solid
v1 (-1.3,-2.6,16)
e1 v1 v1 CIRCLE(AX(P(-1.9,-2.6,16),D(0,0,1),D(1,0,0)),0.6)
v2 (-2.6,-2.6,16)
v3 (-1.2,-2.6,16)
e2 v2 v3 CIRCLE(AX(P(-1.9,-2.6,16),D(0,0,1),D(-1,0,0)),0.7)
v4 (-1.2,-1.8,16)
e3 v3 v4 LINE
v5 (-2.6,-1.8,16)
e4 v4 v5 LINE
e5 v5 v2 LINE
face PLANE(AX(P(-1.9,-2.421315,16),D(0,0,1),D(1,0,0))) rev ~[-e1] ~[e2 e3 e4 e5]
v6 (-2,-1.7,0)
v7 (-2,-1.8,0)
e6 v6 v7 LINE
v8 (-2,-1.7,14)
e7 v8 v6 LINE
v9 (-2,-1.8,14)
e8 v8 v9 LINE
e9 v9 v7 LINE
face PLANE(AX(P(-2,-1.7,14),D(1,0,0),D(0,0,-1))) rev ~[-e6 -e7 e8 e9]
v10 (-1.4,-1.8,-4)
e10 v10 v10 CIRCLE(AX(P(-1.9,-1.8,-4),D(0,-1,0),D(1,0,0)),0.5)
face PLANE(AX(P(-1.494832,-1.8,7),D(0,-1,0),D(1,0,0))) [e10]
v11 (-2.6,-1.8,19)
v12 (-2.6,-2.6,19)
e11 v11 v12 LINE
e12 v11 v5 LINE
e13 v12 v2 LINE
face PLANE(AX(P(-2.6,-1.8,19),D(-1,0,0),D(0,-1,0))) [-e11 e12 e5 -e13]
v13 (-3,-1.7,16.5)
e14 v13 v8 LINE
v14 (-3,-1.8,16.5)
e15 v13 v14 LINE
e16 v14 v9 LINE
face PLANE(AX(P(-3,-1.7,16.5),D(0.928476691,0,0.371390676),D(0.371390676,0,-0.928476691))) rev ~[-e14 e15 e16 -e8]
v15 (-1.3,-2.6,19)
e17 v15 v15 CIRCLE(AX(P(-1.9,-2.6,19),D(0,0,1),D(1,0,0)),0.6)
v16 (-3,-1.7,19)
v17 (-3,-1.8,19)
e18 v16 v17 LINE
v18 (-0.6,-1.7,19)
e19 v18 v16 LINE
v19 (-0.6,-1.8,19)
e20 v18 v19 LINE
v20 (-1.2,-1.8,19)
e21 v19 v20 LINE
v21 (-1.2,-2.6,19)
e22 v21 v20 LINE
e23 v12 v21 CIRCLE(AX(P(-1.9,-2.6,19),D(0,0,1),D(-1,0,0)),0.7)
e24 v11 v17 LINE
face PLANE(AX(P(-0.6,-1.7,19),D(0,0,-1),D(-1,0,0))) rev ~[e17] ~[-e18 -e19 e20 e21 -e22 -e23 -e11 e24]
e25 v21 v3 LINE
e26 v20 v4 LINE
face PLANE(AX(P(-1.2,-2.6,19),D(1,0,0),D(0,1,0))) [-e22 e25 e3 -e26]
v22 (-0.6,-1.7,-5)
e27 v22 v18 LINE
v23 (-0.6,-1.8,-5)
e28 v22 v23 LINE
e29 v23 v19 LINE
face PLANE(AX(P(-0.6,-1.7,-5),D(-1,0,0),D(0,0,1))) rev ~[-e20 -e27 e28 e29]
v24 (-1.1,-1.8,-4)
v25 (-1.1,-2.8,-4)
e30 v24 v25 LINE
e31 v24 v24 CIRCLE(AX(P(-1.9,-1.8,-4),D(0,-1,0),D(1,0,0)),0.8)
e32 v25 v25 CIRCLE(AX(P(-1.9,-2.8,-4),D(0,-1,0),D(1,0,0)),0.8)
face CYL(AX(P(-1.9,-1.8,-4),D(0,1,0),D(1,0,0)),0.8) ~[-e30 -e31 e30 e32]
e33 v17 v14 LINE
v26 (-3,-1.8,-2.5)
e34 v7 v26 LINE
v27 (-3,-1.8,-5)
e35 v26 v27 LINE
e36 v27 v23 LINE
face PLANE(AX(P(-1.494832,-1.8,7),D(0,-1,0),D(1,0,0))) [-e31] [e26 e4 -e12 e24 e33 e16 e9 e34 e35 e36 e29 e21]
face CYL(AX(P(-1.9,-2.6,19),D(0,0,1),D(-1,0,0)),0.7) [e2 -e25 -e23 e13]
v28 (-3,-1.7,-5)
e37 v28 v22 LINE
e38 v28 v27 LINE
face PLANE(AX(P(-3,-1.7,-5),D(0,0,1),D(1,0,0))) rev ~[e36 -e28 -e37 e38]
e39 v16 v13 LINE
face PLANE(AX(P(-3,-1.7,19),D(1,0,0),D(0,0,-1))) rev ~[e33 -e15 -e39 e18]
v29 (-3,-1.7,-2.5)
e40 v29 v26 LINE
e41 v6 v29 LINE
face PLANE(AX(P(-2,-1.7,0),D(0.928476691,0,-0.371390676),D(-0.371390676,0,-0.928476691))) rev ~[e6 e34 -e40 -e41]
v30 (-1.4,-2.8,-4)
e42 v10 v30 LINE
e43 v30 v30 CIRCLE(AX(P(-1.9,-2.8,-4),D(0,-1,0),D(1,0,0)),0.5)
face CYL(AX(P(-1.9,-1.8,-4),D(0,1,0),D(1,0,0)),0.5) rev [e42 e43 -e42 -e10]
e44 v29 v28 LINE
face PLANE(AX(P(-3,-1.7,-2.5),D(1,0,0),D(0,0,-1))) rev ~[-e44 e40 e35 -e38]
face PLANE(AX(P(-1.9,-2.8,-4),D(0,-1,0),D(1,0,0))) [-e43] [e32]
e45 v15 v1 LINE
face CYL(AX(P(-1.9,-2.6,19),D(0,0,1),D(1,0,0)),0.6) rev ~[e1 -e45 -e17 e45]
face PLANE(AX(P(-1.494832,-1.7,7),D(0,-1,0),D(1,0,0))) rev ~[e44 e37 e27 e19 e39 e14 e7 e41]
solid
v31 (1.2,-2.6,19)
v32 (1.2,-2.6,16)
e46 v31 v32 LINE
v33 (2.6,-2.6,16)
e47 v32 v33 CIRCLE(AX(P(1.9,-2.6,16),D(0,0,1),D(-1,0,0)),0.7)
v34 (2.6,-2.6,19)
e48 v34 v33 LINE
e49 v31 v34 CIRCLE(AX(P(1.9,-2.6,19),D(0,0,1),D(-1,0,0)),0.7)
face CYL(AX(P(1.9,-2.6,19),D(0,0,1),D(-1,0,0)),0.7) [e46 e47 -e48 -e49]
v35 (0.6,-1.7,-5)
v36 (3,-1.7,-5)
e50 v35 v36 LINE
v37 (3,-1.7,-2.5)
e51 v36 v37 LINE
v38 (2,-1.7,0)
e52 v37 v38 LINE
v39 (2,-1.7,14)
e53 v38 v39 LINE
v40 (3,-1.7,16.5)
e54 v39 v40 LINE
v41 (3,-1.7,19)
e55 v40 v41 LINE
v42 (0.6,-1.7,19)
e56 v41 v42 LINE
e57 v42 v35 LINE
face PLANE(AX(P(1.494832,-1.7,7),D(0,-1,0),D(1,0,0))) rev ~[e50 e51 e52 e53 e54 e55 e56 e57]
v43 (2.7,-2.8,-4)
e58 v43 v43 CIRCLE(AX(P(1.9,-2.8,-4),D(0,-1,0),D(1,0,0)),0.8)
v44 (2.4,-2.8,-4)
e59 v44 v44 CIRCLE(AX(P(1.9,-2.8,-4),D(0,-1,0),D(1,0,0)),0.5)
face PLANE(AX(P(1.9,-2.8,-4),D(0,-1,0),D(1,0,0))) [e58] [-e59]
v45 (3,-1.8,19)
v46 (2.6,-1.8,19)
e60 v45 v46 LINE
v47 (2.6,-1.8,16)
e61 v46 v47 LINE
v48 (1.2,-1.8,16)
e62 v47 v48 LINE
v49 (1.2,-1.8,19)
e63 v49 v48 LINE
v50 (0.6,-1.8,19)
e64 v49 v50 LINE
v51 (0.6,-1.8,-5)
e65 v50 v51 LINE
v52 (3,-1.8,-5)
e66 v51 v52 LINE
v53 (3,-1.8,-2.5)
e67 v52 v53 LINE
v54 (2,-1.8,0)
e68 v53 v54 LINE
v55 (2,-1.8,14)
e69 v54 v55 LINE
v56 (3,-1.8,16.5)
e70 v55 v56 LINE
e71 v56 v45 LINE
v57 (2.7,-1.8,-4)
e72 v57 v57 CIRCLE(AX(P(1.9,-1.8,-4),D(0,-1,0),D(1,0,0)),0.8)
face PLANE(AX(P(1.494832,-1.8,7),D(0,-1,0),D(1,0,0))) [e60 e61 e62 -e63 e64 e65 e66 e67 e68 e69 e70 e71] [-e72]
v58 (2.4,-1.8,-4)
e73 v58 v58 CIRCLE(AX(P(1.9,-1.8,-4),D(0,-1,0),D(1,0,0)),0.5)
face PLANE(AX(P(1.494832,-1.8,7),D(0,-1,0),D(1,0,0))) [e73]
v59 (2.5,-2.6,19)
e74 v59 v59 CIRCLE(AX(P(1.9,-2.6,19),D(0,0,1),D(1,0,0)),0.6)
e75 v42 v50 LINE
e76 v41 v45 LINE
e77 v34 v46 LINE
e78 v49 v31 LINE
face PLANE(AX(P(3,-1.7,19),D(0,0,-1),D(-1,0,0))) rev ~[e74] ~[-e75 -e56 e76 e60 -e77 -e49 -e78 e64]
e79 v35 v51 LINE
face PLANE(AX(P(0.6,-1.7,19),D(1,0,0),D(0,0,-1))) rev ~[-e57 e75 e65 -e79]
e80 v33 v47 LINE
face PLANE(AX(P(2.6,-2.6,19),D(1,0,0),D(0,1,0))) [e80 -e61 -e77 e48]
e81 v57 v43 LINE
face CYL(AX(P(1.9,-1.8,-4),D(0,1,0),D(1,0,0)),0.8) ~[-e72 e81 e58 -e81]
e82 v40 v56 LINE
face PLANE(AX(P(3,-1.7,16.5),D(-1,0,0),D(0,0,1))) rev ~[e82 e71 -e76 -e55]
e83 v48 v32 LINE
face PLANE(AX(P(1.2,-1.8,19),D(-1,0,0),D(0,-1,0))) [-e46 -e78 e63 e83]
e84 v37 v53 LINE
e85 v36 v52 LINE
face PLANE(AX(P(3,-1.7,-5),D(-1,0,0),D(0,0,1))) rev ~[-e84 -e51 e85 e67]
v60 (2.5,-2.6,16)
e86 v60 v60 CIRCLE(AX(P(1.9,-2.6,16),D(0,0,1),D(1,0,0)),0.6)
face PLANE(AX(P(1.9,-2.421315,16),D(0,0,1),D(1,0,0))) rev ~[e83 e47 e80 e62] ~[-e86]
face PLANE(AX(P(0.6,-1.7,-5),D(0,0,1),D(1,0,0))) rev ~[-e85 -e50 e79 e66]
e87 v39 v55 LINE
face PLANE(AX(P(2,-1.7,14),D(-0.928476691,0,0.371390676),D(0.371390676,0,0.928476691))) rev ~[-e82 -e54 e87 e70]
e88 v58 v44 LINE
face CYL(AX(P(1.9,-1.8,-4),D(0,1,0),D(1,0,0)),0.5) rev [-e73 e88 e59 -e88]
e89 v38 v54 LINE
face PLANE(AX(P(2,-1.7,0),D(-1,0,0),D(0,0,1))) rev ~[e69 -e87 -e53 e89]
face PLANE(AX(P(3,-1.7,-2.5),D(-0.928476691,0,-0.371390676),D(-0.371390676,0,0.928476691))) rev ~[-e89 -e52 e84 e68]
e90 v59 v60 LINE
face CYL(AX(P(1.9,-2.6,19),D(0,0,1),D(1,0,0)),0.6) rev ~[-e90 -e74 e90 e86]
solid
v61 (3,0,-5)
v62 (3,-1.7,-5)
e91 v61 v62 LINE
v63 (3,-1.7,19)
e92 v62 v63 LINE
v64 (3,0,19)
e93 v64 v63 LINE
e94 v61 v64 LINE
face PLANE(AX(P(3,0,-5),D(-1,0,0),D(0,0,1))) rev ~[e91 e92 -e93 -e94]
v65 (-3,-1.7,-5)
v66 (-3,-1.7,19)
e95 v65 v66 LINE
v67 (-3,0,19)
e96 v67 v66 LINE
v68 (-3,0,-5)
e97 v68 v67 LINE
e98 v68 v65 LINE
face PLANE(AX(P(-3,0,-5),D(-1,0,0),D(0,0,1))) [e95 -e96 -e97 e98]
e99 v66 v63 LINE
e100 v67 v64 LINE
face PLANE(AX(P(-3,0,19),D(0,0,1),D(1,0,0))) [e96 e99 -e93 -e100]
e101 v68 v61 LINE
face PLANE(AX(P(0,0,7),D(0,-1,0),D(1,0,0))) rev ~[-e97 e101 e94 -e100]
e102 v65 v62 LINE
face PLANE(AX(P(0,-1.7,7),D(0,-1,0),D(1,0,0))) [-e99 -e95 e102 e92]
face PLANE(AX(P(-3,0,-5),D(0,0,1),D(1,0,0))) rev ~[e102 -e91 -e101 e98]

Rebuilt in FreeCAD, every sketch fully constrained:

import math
import FreeCAD as App
import Part
import Sketcher

V = App.Vector
Q = App.Units.Quantity

doc = App.newDocument("Part")
params = doc.addObject("Spreadsheet::Sheet", "Params")
for row, (alias, value) in enumerate([
    ("sketch1_width", "6 mm"),
    ("sketch1_height", "24 mm"),
    ("pad1_length", "1.7 mm"),
    ("sketch2_height", "24 mm"),
    ("sketch2_height2", "14 mm"),
    ("sketch2_width", "2.4 mm"),
    ("sketch2_height3", "2.5 mm"),
    ("pad2_length", "0.1 mm"),
    ("sketch3_diameter", "1 mm"),
    ("sketch3_diameter2", "1.6 mm"),
    ("pad3_length", "1 mm"),
    ("sketch4_diameter", "1 mm"),
    ("sketch4_diameter2", "1.6 mm"),
    ("pad4_length", "1 mm"),
    ("sketch5_diameter", "1.2 mm"),
    ("sketch5_radius", "0.7 mm"),
    ("sketch5_height", "0.8 mm"),
    ("pad5_length", "3 mm"),
], start=1):
    params.set(f"A{row}", alias)
    params.set(f"B{row}", "=" + value)
    params.setAlias(f"B{row}", alias)

body = doc.addObject("PartDesign::Body", "Body")

sketch1 = body.newObject("Sketcher::SketchObject", "Sketch")
sketch1.AttachmentSupport = (doc.getObject("XZ_Plane"), [""])
sketch1.MapMode = "FlatFace"
sketch1.addGeometry(Part.LineSegment(V(-3, 19, 0), V(-3, -5, 0)), False)
sketch1.addGeometry(Part.LineSegment(V(-3, -5, 0), V(3, -5, 0)), False)
sketch1.addGeometry(Part.LineSegment(V(3, -5, 0), V(3, 19, 0)), False)
sketch1.addGeometry(Part.LineSegment(V(3, 19, 0), V(-3, 19, 0)), False)
sketch1.addConstraint(Sketcher.Constraint("Coincident", 0, 2, 1, 1))
sketch1.addConstraint(Sketcher.Constraint("Coincident", 1, 2, 2, 1))
sketch1.addConstraint(Sketcher.Constraint("Coincident", 2, 2, 3, 1))
sketch1.addConstraint(Sketcher.Constraint("Coincident", 3, 2, 0, 1))
sketch1.addConstraint(Sketcher.Constraint("Vertical", 0))
sketch1.addConstraint(Sketcher.Constraint("Horizontal", 1))
sketch1.addConstraint(Sketcher.Constraint("Vertical", 2))
sketch1.addConstraint(Sketcher.Constraint("Horizontal", 3))
sketch1.addConstraint(Sketcher.Constraint("DistanceX", 1, 1, 1, 2, Q("6 mm")))
sketch1.addConstraint(Sketcher.Constraint("DistanceY", 0, 2, 0, 1, Q("24 mm")))
sketch1.addConstraint(Sketcher.Constraint("DistanceX", 0, 2, -1, 1, Q("3 mm")))
sketch1.addConstraint(Sketcher.Constraint("DistanceY", 0, 2, -1, 1, Q("5 mm")))
sketch1.setExpression("Constraints[8]", "Params.sketch1_width")
sketch1.setExpression("Constraints[9]", "Params.sketch1_height")
pad1 = body.newObject("PartDesign::Pad", "Pad")
pad1.Profile = sketch1
pad1.setExpression("Length", "Params.pad1_length")
body2 = doc.addObject("PartDesign::Body", "Body001")
body2.AllowCompound = True

sketch2 = body2.newObject("Sketcher::SketchObject", "Sketch001")
sketch2.AttachmentSupport = (doc.getObject("XZ_Plane001"), [""])
sketch2.MapMode = "FlatFace"
sketch2.AttachmentOffset = App.Placement(V(0, 0, 1.7), App.Rotation())
sketch2.addGeometry(Part.LineSegment(V(-3, -2.5, 0), V(-3, -5, 0)), False)
sketch2.addGeometry(Part.LineSegment(V(-3, -5, 0), V(-0.6, -5, 0)), False)
sketch2.addGeometry(Part.LineSegment(V(-0.6, -5, 0), V(-0.6, 19, 0)), False)
sketch2.addGeometry(Part.LineSegment(V(-0.6, 19, 0), V(-3, 19, 0)), False)
sketch2.addGeometry(Part.LineSegment(V(-3, 19, 0), V(-3, 16.5, 0)), False)
sketch2.addGeometry(Part.LineSegment(V(-3, 16.5, 0), V(-2, 14, 0)), False)
sketch2.addGeometry(Part.LineSegment(V(-2, 14, 0), V(-2, 0, 0)), False)
sketch2.addGeometry(Part.LineSegment(V(-2, 0, 0), V(-3, -2.5, 0)), False)
sketch2.addGeometry(Part.LineSegment(V(0.6, -5, 0), V(3, -5, 0)), False)
sketch2.addGeometry(Part.LineSegment(V(3, -5, 0), V(3, -2.5, 0)), False)
sketch2.addGeometry(Part.LineSegment(V(3, -2.5, 0), V(2, 0, 0)), False)
sketch2.addGeometry(Part.LineSegment(V(2, 0, 0), V(2, 14, 0)), False)
sketch2.addGeometry(Part.LineSegment(V(2, 14, 0), V(3, 16.5, 0)), False)
sketch2.addGeometry(Part.LineSegment(V(3, 16.5, 0), V(3, 19, 0)), False)
sketch2.addGeometry(Part.LineSegment(V(3, 19, 0), V(0.6, 19, 0)), False)
sketch2.addGeometry(Part.LineSegment(V(0.6, 19, 0), V(0.6, -5, 0)), False)
sketch2.addConstraint(Sketcher.Constraint("Coincident", 0, 2, 1, 1))
sketch2.addConstraint(Sketcher.Constraint("Coincident", 1, 2, 2, 1))
sketch2.addConstraint(Sketcher.Constraint("Coincident", 2, 2, 3, 1))
sketch2.addConstraint(Sketcher.Constraint("Coincident", 3, 2, 4, 1))
sketch2.addConstraint(Sketcher.Constraint("Coincident", 4, 2, 5, 1))
sketch2.addConstraint(Sketcher.Constraint("Coincident", 5, 2, 6, 1))
sketch2.addConstraint(Sketcher.Constraint("Coincident", 6, 2, 7, 1))
sketch2.addConstraint(Sketcher.Constraint("Coincident", 7, 2, 0, 1))
sketch2.addConstraint(Sketcher.Constraint("Coincident", 8, 2, 9, 1))
sketch2.addConstraint(Sketcher.Constraint("Coincident", 9, 2, 10, 1))
sketch2.addConstraint(Sketcher.Constraint("Coincident", 10, 2, 11, 1))
sketch2.addConstraint(Sketcher.Constraint("Coincident", 11, 2, 12, 1))
sketch2.addConstraint(Sketcher.Constraint("Coincident", 12, 2, 13, 1))
sketch2.addConstraint(Sketcher.Constraint("Coincident", 13, 2, 14, 1))
sketch2.addConstraint(Sketcher.Constraint("Coincident", 14, 2, 15, 1))
sketch2.addConstraint(Sketcher.Constraint("Coincident", 15, 2, 8, 1))
sketch2.addConstraint(Sketcher.Constraint("Vertical", 0))
sketch2.addConstraint(Sketcher.Constraint("Horizontal", 1))
sketch2.addConstraint(Sketcher.Constraint("Vertical", 2))
sketch2.addConstraint(Sketcher.Constraint("Horizontal", 3))
sketch2.addConstraint(Sketcher.Constraint("Vertical", 4))
sketch2.addConstraint(Sketcher.Constraint("Vertical", 6))
sketch2.addConstraint(Sketcher.Constraint("Horizontal", 8))
sketch2.addConstraint(Sketcher.Constraint("Vertical", 9))
sketch2.addConstraint(Sketcher.Constraint("Vertical", 11))
sketch2.addConstraint(Sketcher.Constraint("Vertical", 13))
sketch2.addConstraint(Sketcher.Constraint("Horizontal", 14))
sketch2.addConstraint(Sketcher.Constraint("Vertical", 15))
sketch2.addConstraint(Sketcher.Constraint("Symmetric", 6, 2, 10, 2, -1, 1))
sketch2.addConstraint(Sketcher.Constraint("Symmetric", 0, 2, 8, 2, -2))
sketch2.addConstraint(Sketcher.Constraint("Symmetric", 4, 2, 12, 2, -2))
sketch2.addConstraint(Sketcher.Constraint("Symmetric", 2, 2, 14, 2, -2))
sketch2.addConstraint(Sketcher.Constraint("PointOnObject", 6, 2, -1))
sketch2.addConstraint(Sketcher.Constraint("Parallel", 5, 10))
sketch2.addConstraint(Sketcher.Constraint("Parallel", 7, 12))
sketch2.addConstraint(Sketcher.Constraint("Horizontal", 7, 2, 9, 2))
sketch2.addConstraint(Sketcher.Constraint("Vertical", 0, 2, 3, 2))
sketch2.addConstraint(Sketcher.Constraint("Equal", 0, 4))
sketch2.addConstraint(Sketcher.Constraint("DistanceY", 2, 1, 2, 2, Q("24 mm")))
sketch2.addConstraint(Sketcher.Constraint("DistanceY", 6, 2, 6, 1, Q("14 mm")))
sketch2.addConstraint(Sketcher.Constraint("DistanceX", 1, 1, 1, 2, Q("2.4 mm")))
sketch2.addConstraint(Sketcher.Constraint("DistanceY", 0, 2, 0, 1, Q("2.5 mm")))
sketch2.addConstraint(Sketcher.Constraint("DistanceX", 0, 2, -1, 1, Q("3 mm")))
sketch2.addConstraint(Sketcher.Constraint("DistanceX", 5, 2, -1, 1, Q("2 mm")))
sketch2.setExpression("Constraints[38]", "Params.sketch2_height")
sketch2.setExpression("Constraints[39]", "Params.sketch2_height2")
sketch2.setExpression("Constraints[40]", "Params.sketch2_width")
sketch2.setExpression("Constraints[41]", "Params.sketch2_height3")
pad2 = body2.newObject("PartDesign::Pad", "Pad001")
pad2.Profile = sketch2
pad2.setExpression("Length", "Params.pad2_length")

sketch3 = body2.newObject("Sketcher::SketchObject", "Sketch002")
sketch3.AttachmentSupport = (doc.getObject("XZ_Plane001"), [""])
sketch3.MapMode = "FlatFace"
sketch3.AttachmentOffset = App.Placement(V(0, 0, 1.8), App.Rotation())
sketch3.addGeometry(Part.Circle(V(-1.9, -4, 0), V(0, 0, 1), 0.8), False)
sketch3.addGeometry(Part.Circle(V(-1.9, -4, 0), V(0, 0, 1), 0.5), False)
sketch3.addConstraint(Sketcher.Constraint("Coincident", 1, 3, 0, 3))
sketch3.addConstraint(Sketcher.Constraint("Diameter", 1, Q("1 mm")))
sketch3.addConstraint(Sketcher.Constraint("Diameter", 0, Q("1.6 mm")))
sketch3.addConstraint(Sketcher.Constraint("DistanceY", 0, 3, -1, 1, Q("4 mm")))
sketch3.addConstraint(Sketcher.Constraint("DistanceX", 0, 3, -1, 1, Q("1.9 mm")))
sketch3.setExpression("Constraints[1]", "Params.sketch3_diameter")
sketch3.setExpression("Constraints[2]", "Params.sketch3_diameter2")
pad3 = body2.newObject("PartDesign::Pad", "Pad002")
pad3.Profile = sketch3
pad3.setExpression("Length", "Params.pad3_length")

sketch4 = body2.newObject("Sketcher::SketchObject", "Sketch003")
sketch4.AttachmentSupport = (doc.getObject("XZ_Plane001"), [""])
sketch4.MapMode = "FlatFace"
sketch4.AttachmentOffset = App.Placement(V(0, 0, 1.8), App.Rotation())
sketch4.addGeometry(Part.Circle(V(1.9, -4, 0), V(0, 0, 1), 0.8), False)
sketch4.addGeometry(Part.Circle(V(1.9, -4, 0), V(0, 0, 1), 0.5), False)
sketch4.addConstraint(Sketcher.Constraint("Coincident", 1, 3, 0, 3))
sketch4.addConstraint(Sketcher.Constraint("Diameter", 1, Q("1 mm")))
sketch4.addConstraint(Sketcher.Constraint("Diameter", 0, Q("1.6 mm")))
sketch4.addConstraint(Sketcher.Constraint("DistanceY", 0, 3, -1, 1, Q("4 mm")))
sketch4.addConstraint(Sketcher.Constraint("DistanceX", -1, 1, 0, 3, Q("1.9 mm")))
sketch4.setExpression("Constraints[1]", "Params.sketch4_diameter")
sketch4.setExpression("Constraints[2]", "Params.sketch4_diameter2")
pad4 = body2.newObject("PartDesign::Pad", "Pad003")
pad4.Profile = sketch4
pad4.setExpression("Length", "Params.pad4_length")

sketch5 = body2.newObject("Sketcher::SketchObject", "Sketch004")
sketch5.AttachmentSupport = (doc.getObject("XY_Plane001"), [""])
sketch5.MapMode = "FlatFace"
sketch5.AttachmentOffset = App.Placement(V(0, 0, 19), App.Rotation())
sketch5.addGeometry(Part.LineSegment(V(-2.6, -1.8, 0), V(-2.6, -2.6, 0)), False)
sketch5.addGeometry(Part.ArcOfCircle(Part.Circle(V(-1.9, -2.6, 0), V(0, 0, 1), 0.7), math.radians(180), math.radians(360)), False)
sketch5.addGeometry(Part.LineSegment(V(-1.2, -2.6, 0), V(-1.2, -1.8, 0)), False)
sketch5.addGeometry(Part.LineSegment(V(-1.2, -1.8, 0), V(-2.6, -1.8, 0)), False)
sketch5.addGeometry(Part.Circle(V(-1.9, -2.6, 0), V(0, 0, 1), 0.6), False)
sketch5.addGeometry(Part.LineSegment(V(1.2, -1.8, 0), V(1.2, -2.6, 0)), False)
sketch5.addGeometry(Part.ArcOfCircle(Part.Circle(V(1.9, -2.6, 0), V(0, 0, 1), 0.7), math.radians(180), math.radians(360)), False)
sketch5.addGeometry(Part.LineSegment(V(2.6, -2.6, 0), V(2.6, -1.8, 0)), False)
sketch5.addGeometry(Part.LineSegment(V(2.6, -1.8, 0), V(1.2, -1.8, 0)), False)
sketch5.addGeometry(Part.Circle(V(1.9, -2.6, 0), V(0, 0, 1), 0.6), False)
sketch5.addConstraint(Sketcher.Constraint("Tangent", 0, 2, 1, 1))
sketch5.addConstraint(Sketcher.Constraint("Tangent", 1, 2, 2, 1))
sketch5.addConstraint(Sketcher.Constraint("Coincident", 2, 2, 3, 1))
sketch5.addConstraint(Sketcher.Constraint("Coincident", 3, 2, 0, 1))
sketch5.addConstraint(Sketcher.Constraint("Tangent", 5, 2, 6, 1))
sketch5.addConstraint(Sketcher.Constraint("Tangent", 6, 2, 7, 1))
sketch5.addConstraint(Sketcher.Constraint("Coincident", 7, 2, 8, 1))
sketch5.addConstraint(Sketcher.Constraint("Coincident", 8, 2, 5, 1))
sketch5.addConstraint(Sketcher.Constraint("Vertical", 0))
sketch5.addConstraint(Sketcher.Constraint("Vertical", 2))
sketch5.addConstraint(Sketcher.Constraint("Horizontal", 3))
sketch5.addConstraint(Sketcher.Constraint("Vertical", 5))
sketch5.addConstraint(Sketcher.Constraint("Vertical", 7))
sketch5.addConstraint(Sketcher.Constraint("Horizontal", 8))
sketch5.addConstraint(Sketcher.Constraint("Coincident", 4, 3, 1, 3))
sketch5.addConstraint(Sketcher.Constraint("Coincident", 9, 3, 6, 3))
sketch5.addConstraint(Sketcher.Constraint("Equal", 1, 6))
sketch5.addConstraint(Sketcher.Constraint("Equal", 4, 9))
sketch5.addConstraint(Sketcher.Constraint("Symmetric", 1, 3, 6, 3, -2))
sketch5.addConstraint(Sketcher.Constraint("Horizontal", 3, 2, 7, 2))
sketch5.addConstraint(Sketcher.Constraint("Diameter", 4, Q("1.2 mm")))
sketch5.addConstraint(Sketcher.Constraint("Radius", 1, Q("0.7 mm")))
sketch5.addConstraint(Sketcher.Constraint("DistanceY", 0, 2, 0, 1, Q("0.8 mm")))
sketch5.addConstraint(Sketcher.Constraint("DistanceX", 1, 3, -1, 1, Q("1.9 mm")))
sketch5.addConstraint(Sketcher.Constraint("DistanceY", 1, 3, -1, 1, Q("2.6 mm")))
sketch5.setExpression("Constraints[20]", "Params.sketch5_diameter")
sketch5.setExpression("Constraints[21]", "Params.sketch5_radius")
sketch5.setExpression("Constraints[22]", "Params.sketch5_height")
pad5 = body2.newObject("PartDesign::Pad", "Pad004")
pad5.Profile = sketch5
pad5.setExpression("Length", "Params.pad5_length")
pad5.Reversed = True

doc.recompute()
